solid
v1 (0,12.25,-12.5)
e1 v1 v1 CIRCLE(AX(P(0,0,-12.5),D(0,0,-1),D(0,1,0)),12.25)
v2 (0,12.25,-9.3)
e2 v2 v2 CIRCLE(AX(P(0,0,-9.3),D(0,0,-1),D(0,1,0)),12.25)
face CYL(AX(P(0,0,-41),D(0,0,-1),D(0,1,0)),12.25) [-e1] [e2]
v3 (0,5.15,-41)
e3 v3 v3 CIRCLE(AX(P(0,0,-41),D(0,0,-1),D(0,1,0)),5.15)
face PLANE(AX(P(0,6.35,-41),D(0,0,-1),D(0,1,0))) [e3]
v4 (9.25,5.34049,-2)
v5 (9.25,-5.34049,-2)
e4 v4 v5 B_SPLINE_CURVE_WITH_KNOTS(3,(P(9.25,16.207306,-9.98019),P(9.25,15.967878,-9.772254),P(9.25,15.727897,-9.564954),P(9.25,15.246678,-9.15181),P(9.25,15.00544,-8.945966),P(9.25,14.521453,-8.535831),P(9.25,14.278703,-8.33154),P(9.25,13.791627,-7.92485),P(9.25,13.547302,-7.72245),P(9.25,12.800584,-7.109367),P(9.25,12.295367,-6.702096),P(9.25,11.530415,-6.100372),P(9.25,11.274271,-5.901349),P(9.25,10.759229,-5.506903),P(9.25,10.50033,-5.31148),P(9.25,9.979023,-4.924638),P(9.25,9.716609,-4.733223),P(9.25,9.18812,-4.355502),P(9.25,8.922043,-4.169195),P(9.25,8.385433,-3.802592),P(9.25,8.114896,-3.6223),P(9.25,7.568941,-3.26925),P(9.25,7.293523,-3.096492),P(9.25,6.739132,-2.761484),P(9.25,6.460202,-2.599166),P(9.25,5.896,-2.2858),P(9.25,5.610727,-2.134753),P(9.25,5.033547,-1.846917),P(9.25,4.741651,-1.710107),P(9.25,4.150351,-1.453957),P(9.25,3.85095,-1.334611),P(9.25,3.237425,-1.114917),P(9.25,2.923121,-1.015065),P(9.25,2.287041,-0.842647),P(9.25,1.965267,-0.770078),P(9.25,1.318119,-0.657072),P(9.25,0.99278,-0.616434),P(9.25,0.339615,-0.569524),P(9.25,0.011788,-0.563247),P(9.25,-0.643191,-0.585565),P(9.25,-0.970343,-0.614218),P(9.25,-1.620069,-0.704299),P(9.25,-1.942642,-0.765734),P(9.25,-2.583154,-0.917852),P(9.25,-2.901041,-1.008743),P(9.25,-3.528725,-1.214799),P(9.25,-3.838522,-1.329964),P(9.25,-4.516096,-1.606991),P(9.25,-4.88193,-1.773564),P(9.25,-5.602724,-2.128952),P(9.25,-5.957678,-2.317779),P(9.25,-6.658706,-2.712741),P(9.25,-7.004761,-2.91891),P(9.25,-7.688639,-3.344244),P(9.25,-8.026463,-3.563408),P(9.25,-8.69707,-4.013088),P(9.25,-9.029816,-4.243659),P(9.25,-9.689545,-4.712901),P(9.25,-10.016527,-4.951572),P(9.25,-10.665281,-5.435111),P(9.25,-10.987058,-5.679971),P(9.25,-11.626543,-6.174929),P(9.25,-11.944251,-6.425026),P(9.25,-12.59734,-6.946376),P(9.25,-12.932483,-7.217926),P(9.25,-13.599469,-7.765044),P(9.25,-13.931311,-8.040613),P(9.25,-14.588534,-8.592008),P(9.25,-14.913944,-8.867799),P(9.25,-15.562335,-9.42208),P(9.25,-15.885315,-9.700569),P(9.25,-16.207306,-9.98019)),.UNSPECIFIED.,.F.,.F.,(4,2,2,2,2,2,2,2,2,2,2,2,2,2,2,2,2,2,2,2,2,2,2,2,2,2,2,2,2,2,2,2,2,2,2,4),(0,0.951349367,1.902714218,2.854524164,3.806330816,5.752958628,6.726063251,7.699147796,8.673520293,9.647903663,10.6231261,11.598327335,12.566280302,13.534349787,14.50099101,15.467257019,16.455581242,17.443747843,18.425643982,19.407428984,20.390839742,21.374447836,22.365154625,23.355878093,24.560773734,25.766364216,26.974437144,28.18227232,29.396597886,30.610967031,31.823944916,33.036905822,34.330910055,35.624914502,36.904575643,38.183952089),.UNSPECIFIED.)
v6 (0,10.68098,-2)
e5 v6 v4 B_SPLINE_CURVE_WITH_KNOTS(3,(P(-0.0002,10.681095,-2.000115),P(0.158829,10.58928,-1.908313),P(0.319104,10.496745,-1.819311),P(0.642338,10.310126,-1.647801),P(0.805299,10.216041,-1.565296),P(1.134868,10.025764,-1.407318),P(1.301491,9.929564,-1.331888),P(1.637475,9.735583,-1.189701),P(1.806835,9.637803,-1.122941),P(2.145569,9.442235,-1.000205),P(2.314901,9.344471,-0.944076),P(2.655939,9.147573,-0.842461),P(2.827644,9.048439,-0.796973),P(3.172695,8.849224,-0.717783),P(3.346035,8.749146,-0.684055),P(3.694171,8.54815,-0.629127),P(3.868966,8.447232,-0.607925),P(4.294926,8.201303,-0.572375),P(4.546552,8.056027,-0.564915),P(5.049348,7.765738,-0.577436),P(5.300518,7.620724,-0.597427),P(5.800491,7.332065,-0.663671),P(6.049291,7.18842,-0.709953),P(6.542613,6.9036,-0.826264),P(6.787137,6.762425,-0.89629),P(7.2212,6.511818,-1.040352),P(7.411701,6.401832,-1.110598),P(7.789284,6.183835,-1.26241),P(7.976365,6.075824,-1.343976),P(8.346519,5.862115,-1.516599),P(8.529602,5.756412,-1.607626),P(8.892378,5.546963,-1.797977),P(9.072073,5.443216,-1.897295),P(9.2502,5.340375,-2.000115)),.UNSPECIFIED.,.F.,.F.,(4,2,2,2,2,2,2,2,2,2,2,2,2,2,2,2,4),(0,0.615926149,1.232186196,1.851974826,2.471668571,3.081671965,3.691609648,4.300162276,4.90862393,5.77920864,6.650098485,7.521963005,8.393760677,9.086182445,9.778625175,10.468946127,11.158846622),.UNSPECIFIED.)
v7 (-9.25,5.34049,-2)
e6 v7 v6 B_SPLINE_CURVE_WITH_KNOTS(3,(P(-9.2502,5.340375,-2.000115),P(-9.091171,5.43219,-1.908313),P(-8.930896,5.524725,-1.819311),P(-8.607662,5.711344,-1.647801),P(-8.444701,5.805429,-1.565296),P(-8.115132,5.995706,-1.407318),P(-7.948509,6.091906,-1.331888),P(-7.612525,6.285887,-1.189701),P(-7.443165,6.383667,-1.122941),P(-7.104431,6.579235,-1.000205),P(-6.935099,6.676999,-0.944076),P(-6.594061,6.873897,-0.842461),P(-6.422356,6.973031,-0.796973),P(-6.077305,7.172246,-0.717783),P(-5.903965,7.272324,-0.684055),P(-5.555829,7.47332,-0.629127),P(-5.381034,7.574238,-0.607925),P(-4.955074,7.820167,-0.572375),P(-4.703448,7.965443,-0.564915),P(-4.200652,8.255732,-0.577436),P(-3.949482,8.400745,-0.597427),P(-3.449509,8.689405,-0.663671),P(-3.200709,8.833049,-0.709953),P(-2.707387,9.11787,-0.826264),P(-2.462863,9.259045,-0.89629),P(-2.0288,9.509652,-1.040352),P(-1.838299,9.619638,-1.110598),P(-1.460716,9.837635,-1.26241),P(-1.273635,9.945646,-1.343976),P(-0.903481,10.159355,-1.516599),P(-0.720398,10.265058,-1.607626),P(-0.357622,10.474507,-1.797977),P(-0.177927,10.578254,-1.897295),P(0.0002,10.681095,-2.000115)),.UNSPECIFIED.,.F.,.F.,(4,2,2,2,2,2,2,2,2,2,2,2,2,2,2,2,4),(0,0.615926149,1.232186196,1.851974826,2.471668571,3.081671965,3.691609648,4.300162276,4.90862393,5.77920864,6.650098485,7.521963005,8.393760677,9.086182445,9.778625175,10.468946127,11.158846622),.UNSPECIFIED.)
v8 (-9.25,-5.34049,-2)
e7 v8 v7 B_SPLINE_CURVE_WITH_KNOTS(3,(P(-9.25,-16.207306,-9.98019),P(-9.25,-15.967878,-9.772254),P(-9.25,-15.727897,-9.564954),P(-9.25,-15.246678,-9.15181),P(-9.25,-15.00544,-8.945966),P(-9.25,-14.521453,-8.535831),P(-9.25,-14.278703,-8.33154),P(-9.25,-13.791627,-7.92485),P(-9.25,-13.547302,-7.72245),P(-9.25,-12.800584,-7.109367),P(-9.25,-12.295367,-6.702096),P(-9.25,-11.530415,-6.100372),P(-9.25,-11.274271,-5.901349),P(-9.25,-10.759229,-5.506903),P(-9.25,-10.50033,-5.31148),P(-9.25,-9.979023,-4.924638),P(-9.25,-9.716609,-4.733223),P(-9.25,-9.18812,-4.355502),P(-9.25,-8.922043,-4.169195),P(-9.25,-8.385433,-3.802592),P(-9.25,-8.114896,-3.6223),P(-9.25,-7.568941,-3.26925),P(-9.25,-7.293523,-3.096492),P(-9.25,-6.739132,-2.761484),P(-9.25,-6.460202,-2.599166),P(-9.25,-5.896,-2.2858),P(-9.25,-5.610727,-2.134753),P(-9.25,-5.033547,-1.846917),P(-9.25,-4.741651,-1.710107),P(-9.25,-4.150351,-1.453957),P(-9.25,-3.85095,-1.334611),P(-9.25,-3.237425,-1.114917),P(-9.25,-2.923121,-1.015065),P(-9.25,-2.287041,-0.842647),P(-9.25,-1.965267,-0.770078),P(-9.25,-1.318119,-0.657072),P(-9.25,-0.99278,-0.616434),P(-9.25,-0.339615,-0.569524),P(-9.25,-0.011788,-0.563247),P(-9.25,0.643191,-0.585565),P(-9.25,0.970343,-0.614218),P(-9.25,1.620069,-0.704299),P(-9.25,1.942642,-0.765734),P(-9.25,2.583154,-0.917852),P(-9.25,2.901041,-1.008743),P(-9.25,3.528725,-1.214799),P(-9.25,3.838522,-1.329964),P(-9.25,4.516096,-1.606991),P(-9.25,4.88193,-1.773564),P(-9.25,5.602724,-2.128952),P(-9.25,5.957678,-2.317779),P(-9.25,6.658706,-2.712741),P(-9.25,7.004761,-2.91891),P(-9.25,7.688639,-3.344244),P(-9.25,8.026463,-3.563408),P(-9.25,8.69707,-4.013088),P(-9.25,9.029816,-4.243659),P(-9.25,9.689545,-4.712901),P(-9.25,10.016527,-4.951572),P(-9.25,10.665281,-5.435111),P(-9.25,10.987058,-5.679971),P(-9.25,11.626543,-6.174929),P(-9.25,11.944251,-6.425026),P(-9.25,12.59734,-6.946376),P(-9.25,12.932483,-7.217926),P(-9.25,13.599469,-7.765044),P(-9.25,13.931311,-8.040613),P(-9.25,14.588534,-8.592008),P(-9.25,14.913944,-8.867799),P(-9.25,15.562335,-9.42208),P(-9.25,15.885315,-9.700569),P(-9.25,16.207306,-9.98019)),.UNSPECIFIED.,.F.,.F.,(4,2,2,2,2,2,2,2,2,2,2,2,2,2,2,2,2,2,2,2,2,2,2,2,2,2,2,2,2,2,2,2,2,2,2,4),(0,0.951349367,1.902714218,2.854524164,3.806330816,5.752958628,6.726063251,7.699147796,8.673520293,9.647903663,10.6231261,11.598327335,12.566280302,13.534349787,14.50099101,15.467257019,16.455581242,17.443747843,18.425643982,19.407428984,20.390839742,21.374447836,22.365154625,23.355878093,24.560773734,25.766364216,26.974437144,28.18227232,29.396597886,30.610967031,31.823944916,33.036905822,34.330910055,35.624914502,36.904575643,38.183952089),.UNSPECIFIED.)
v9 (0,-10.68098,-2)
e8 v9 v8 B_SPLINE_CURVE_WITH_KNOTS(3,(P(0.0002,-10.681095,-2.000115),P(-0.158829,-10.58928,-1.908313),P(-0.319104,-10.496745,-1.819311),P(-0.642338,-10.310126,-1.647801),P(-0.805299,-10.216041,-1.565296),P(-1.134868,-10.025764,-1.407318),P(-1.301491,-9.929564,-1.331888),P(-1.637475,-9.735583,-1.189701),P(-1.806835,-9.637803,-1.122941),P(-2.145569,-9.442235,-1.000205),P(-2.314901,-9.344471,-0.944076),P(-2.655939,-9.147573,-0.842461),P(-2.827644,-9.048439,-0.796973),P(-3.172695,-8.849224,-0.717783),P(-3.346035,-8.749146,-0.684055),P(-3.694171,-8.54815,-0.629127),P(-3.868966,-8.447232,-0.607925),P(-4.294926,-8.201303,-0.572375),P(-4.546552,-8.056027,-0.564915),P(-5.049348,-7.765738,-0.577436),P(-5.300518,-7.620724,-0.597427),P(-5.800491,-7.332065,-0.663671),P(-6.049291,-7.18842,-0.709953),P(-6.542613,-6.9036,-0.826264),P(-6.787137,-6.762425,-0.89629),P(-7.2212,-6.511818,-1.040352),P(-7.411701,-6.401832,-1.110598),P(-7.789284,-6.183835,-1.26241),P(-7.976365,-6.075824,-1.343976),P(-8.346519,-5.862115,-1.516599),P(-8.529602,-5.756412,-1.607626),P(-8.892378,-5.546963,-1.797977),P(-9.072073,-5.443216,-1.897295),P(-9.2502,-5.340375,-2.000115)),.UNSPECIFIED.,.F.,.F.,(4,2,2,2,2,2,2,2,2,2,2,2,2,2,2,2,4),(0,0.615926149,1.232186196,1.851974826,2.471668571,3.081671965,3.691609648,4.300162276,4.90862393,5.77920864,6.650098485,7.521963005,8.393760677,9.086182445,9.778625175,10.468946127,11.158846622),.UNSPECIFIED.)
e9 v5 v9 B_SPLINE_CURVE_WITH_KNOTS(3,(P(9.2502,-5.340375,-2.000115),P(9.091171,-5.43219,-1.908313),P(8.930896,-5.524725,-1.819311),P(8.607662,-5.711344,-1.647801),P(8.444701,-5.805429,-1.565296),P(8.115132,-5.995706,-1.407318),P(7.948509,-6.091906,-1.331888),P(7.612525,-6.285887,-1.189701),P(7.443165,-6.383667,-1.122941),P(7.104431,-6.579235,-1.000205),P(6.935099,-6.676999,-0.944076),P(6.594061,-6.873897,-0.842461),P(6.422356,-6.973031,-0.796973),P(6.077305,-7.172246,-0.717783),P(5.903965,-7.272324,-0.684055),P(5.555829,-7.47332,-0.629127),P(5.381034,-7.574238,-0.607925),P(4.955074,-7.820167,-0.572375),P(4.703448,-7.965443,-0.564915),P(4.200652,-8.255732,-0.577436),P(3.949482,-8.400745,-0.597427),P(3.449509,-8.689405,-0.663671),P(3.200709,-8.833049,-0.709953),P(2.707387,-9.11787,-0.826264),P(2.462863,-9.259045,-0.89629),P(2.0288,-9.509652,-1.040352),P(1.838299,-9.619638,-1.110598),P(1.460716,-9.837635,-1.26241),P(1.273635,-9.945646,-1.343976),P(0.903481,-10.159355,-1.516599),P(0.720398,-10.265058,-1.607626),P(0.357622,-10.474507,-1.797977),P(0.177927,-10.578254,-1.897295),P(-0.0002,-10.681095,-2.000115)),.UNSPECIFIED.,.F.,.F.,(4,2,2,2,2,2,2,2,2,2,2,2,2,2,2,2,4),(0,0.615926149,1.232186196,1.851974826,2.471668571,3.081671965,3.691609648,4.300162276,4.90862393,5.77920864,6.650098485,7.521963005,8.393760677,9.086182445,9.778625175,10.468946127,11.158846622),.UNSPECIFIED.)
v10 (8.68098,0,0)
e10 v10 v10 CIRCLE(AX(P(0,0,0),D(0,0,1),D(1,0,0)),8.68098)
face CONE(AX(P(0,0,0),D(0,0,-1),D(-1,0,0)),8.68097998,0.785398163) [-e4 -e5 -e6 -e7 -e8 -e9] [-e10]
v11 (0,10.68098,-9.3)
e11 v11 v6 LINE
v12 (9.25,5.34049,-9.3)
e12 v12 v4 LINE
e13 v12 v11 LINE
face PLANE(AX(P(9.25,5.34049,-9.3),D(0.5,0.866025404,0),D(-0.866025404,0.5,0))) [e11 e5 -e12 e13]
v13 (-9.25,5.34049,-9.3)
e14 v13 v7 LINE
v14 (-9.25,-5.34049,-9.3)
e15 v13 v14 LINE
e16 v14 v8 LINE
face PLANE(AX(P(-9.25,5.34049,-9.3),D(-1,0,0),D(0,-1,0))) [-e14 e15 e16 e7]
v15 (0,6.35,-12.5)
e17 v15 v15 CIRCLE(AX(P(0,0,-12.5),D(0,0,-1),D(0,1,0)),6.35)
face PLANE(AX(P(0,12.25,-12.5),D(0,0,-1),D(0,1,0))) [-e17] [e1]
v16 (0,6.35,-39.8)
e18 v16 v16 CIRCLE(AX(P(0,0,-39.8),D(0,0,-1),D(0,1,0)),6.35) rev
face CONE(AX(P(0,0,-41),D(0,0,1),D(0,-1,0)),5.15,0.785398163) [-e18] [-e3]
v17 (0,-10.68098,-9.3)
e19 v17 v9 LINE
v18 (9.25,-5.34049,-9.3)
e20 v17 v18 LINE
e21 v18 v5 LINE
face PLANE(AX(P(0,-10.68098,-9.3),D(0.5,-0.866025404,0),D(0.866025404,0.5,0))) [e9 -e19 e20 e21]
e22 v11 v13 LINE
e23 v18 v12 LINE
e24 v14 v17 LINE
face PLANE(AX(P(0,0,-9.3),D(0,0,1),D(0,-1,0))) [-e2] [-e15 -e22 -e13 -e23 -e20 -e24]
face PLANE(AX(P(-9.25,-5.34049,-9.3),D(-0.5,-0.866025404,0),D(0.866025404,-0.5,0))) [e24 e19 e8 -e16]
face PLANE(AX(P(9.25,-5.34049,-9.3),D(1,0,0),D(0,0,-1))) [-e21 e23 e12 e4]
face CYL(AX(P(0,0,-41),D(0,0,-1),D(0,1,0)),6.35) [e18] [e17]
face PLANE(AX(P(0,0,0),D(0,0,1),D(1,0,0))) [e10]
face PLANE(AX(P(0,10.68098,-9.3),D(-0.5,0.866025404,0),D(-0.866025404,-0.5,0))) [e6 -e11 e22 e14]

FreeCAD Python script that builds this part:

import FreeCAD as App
import Part
import Sketcher
from FreeCAD import Vector
Q = App.Units.Quantity


def edges_at(feature, points):
    """Names of the edges that pass closest to the given points."""
    edges = feature.Shape.Edges
    near = lambda p: min(range(len(edges)), key=lambda i: edges[i].distToShape(Part.Vertex(*p))[0])
    return sorted({f"Edge{near(p) + 1}" for p in points})

doc = App.newDocument("Part")
body = doc.addObject("PartDesign::Body", "Body")

# Sketch on XY plane
sketch1 = body.newObject("Sketcher::SketchObject", "Sketch")
sketch1.AttachmentSupport = (doc.getObject("XY_Plane"), [""])
sketch1.MapMode = "FlatFace"
sketch1.addGeometry([
    Part.LineSegment(Vector(9, -5, 0), Vector(9, 5, 0)),  # 0
    Part.LineSegment(Vector(9, 5, 0), Vector(0, 11, 0)),  # 1
    Part.LineSegment(Vector(0, 11, 0), Vector(-9, 5, 0)),  # 2
    Part.LineSegment(Vector(-9, 5, 0), Vector(-9, -5, 0)),  # 3
    Part.LineSegment(Vector(-9, -5, 0), Vector(0, -11, 0)),  # 4
    Part.LineSegment(Vector(0, -11, 0), Vector(9, -5, 0)),  # 5
], False)
sketch1.addConstraint([
    Sketcher.Constraint("Coincident", 0, 2, 1, 1),
    Sketcher.Constraint("Coincident", 1, 2, 2, 1),
    Sketcher.Constraint("Coincident", 2, 2, 3, 1),
    Sketcher.Constraint("Coincident", 3, 2, 4, 1),
    Sketcher.Constraint("Coincident", 4, 2, 5, 1),
    Sketcher.Constraint("Coincident", 5, 2, 0, 1),
    Sketcher.Constraint("Vertical", 0),
    Sketcher.Constraint("Vertical", 3),
    Sketcher.Constraint("Symmetric", 0, 2, 3, 2, -1, 1),
    Sketcher.Constraint("Symmetric", 1, 2, 4, 2, -1, 1),
    Sketcher.Constraint("PointOnObject", 1, 2, -2),
    Sketcher.Constraint("Parallel", 2, 5),
    Sketcher.Constraint("Horizontal", 0, 2, 2, 2),
    Sketcher.Constraint("Angle", 1, Q("150 deg")),
    Sketcher.Constraint("DistanceX", 2, 2, 0, 2, 18.5),
    Sketcher.Constraint("DistanceY", 0, 1, 0, 2, 10.68098),
])
pad1 = body.newObject("PartDesign::Pad", "Pad")
pad1.Profile = sketch1
pad1.Length = 9.3
pad1.Reversed = True

# Sketch on YZ plane
sketch2 = body.newObject("Sketcher::SketchObject", "Sketch001")
sketch2.AttachmentSupport = (doc.getObject("YZ_Plane"), [""])
sketch2.MapMode = "FlatFace"
sketch2.addGeometry([
    Part.LineSegment(Vector(12.2, -12.5, 0), Vector(12.2, -9.3, 0)),  # 0
    Part.LineSegment(Vector(12.2, -9.3, 0), Vector(0, -9.3, 0)),  # 1
    Part.LineSegment(Vector(0, -9.3, 0), Vector(0, -41, 0)),  # 2
    Part.LineSegment(Vector(0, -41, 0), Vector(6.3, -41, 0)),  # 3
    Part.LineSegment(Vector(6.3, -41, 0), Vector(6.3, -12.5, 0)),  # 4
    Part.LineSegment(Vector(6.3, -12.5, 0), Vector(12.2, -12.5, 0)),  # 5
], False)
sketch2.addConstraint([
    Sketcher.Constraint("Coincident", 0, 2, 1, 1),
    Sketcher.Constraint("Coincident", 1, 2, 2, 1),
    Sketcher.Constraint("Coincident", 2, 2, 3, 1),
    Sketcher.Constraint("Coincident", 3, 2, 4, 1),
    Sketcher.Constraint("Coincident", 4, 2, 5, 1),
    Sketcher.Constraint("Coincident", 5, 2, 0, 1),
    Sketcher.Constraint("Vertical", 0),
    Sketcher.Constraint("Horizontal", 1),
    Sketcher.Constraint("Vertical", 2),
    Sketcher.Constraint("Horizontal", 3),
    Sketcher.Constraint("Vertical", 4),
    Sketcher.Constraint("Horizontal", 5),
    Sketcher.Constraint("PointOnObject", 1, 2, -2),
    Sketcher.Constraint("DistanceX", 5, 1, 5, 2, 5.9),
    Sketcher.Constraint("DistanceY", 0, 1, 0, 2, 3.2),
    Sketcher.Constraint("DistanceY", 2, 2, 2, 1, 31.7),
    Sketcher.Constraint("DistanceY", 2, 2, -1, 1, 41.0),
    Sketcher.Constraint("DistanceX", 1, 2, 1, 1, 12.25),
])
revolution = body.newObject("PartDesign::Revolution", "Revolution")
revolution.Profile = sketch2
revolution.ReferenceAxis = (sketch2, ["V_Axis"])
revolution.Angle = 360

# Sketch on YZ plane
sketch3 = body.newObject("Sketcher::SketchObject", "Sketch002")
sketch3.AttachmentSupport = (doc.getObject("YZ_Plane"), [""])
sketch3.MapMode = "FlatFace"
sketch3.addGeometry([
    Part.LineSegment(Vector(8.7, 0, 0), Vector(10.7, -2, 0)),
    Part.LineSegment(Vector(10.7, -2, 0), Vector(10.7, 0, 0)),
    Part.LineSegment(Vector(10.7, 0, 0), Vector(8.7, 0, 0)),
], False)
sketch3.addConstraint([
    Sketcher.Constraint("Coincident", 0, 2, 1, 1),
    Sketcher.Constraint("Coincident", 1, 2, 2, 1),
    Sketcher.Constraint("Coincident", 2, 2, 0, 1),
    Sketcher.Constraint("Vertical", 1),
    Sketcher.Constraint("Horizontal", 2),
    Sketcher.Constraint("PointOnObject", 1, 2, -1),
    Sketcher.Constraint("Equal", 2, 1),
    Sketcher.Constraint("DistanceX", 2, 2, 2, 1, 2.0),
    Sketcher.Constraint("DistanceX", -1, 1, 0, 2, 10.68098),
])
groove = body.newObject("PartDesign::Groove", "Groove")
groove.Profile = sketch3
groove.ReferenceAxis = (sketch3, ["V_Axis"])
groove.Angle = 360
doc.recompute()

chamfer = body.newObject("PartDesign::Chamfer", "Chamfer")
chamfer.Base = (groove, edges_at(groove, [(0, -6.35, -41)]))
chamfer.Size = 1.2

doc.recompute()
